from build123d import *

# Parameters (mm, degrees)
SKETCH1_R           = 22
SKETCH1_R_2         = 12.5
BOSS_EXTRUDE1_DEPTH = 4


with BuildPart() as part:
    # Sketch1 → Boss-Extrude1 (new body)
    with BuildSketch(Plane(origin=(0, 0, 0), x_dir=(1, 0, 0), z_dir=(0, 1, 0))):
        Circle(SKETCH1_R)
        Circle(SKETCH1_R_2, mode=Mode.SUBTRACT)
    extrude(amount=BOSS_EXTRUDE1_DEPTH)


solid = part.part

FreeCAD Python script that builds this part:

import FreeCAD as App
import Part
import Sketcher

V = App.Vector

doc = App.newDocument("Part")
params = doc.addObject("Spreadsheet::Sheet", "Params")
for row, (alias, value) in enumerate([
    ("sketch1_diameter", "44 mm"),
    ("sketch1_diameter2", "25 mm"),
    ("pad1_length", "4 mm"),
], start=1):
    params.set(f"A{row}", alias)
    params.set(f"B{row}", "=" + value)
    params.setAlias(f"B{row}", alias)

body = doc.addObject("PartDesign::Body", "Body")

# Sketch on XZ plane
sketch1 = body.newObject("Sketcher::SketchObject", "Sketch")
sketch1.AttachmentSupport = (doc.getObject("XZ_Plane"), [""])
sketch1.MapMode = "FlatFace"
sketch1.addGeometry([
    Part.Circle(V(0, 0, 0), V(0, 0, 1), 22),
    Part.Circle(V(0, 0, 0), V(0, 0, 1), 12),
], False)
sketch1.addConstraint([
    Sketcher.Constraint("Coincident", 0, 3, -1, 1),
    Sketcher.Constraint("Coincident", 1, 3, -1, 1),
    Sketcher.Constraint("Diameter", 0, 44.0),
    Sketcher.Constraint("Diameter", 1, 25.0),
])
sketch1.setExpression("Constraints[2]", "Params.sketch1_diameter")
sketch1.setExpression("Constraints[3]", "Params.sketch1_diameter2")
pad1 = body.newObject("PartDesign::Pad", "Pad")
pad1.Profile = sketch1
pad1.setExpression("Length", "Params.pad1_length")
pad1.Reversed = True

doc.recompute()
